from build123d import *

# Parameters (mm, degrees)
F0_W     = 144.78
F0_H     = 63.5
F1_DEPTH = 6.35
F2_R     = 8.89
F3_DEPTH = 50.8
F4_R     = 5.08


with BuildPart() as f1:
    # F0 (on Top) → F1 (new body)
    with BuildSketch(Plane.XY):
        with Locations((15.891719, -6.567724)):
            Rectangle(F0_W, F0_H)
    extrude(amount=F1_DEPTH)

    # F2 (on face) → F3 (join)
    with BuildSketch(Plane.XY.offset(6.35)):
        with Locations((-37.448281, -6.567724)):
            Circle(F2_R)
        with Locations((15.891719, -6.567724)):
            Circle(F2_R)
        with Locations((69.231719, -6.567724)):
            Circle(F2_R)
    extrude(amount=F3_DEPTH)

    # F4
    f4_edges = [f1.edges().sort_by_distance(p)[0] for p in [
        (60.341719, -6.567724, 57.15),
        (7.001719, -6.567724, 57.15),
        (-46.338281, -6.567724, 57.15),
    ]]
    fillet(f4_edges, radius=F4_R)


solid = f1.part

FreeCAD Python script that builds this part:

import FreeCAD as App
import Part
import Sketcher
Q = App.Units.Quantity


def edges_at(feature, points):
    """Names of the edges that pass closest to the given points."""
    edges = feature.Shape.Edges
    near = lambda p: min(range(len(edges)), key=lambda i: edges[i].distToShape(Part.Vertex(*p))[0])
    return sorted({f"Edge{near(p) + 1}" for p in points})

doc = App.newDocument("Part")
body = doc.addObject("PartDesign::Body", "Body")

# Sketch on XY plane
sketch1 = doc.addObject("Sketcher::SketchObject", "Sketch")
body.addObject(sketch1)
sketch1.AttachmentSupport = (doc.XY_Plane, [""])
sketch1.MapMode = "FlatFace"
sketch1.addGeometry([
    Part.LineSegment(App.Vector(-56, 25, 0), App.Vector(-56, -38, 0)),
    Part.LineSegment(App.Vector(-56, -38, 0), App.Vector(88, -38, 0)),
    Part.LineSegment(App.Vector(88, -38, 0), App.Vector(88, 25, 0)),
    Part.LineSegment(App.Vector(88, 25, 0), App.Vector(-56, 25, 0)),
], False)
sketch1.addConstraint([
    Sketcher.Constraint("Coincident", 0, 2, 1, 1),
    Sketcher.Constraint("Coincident", 1, 2, 2, 1),
    Sketcher.Constraint("Coincident", 2, 2, 3, 1),
    Sketcher.Constraint("Coincident", 3, 2, 0, 1),
    Sketcher.Constraint("Vertical", 0),
    Sketcher.Constraint("Horizontal", 1),
    Sketcher.Constraint("Vertical", 2),
    Sketcher.Constraint("Horizontal", 3),
    Sketcher.Constraint("DistanceX", 1, 1, 1, 2, Q("5.7 in")),
    Sketcher.Constraint("DistanceY", 0, 2, 0, 1, Q("2.5 in")),
    Sketcher.Constraint("DistanceX", 0, 2, -1, 1, 56.498281),
    Sketcher.Constraint("DistanceY", 0, 2, -1, 1, 38.317724),
])
pad1 = doc.addObject("PartDesign::Pad", "Pad")
body.addObject(pad1)
pad1.Profile = sketch1
pad1.Length = Q("0.25 in")

# Sketch on XY plane
sketch2 = doc.addObject("Sketcher::SketchObject", "Sketch001")
body.addObject(sketch2)
sketch2.AttachmentSupport = (doc.XY_Plane, [""])
sketch2.MapMode = "FlatFace"
sketch2.AttachmentOffset = App.Placement(App.Vector(0, 0, 0.25 * 25.4), App.Rotation())
sketch2.addGeometry([
    Part.Circle(App.Vector(-37, -7, 0), App.Vector(0, 0, 1), 9),
    Part.Circle(App.Vector(16, -7, 0), App.Vector(0, 0, 1), 9),
    Part.Circle(App.Vector(69, -7, 0), App.Vector(0, 0, 1), 9),
], False)
sketch2.addConstraint([
    Sketcher.Constraint("Equal", 0, 1),
    Sketcher.Constraint("Equal", 1, 2),
    Sketcher.Constraint("Horizontal", 0, 3, 1, 3),
    Sketcher.Constraint("Horizontal", 1, 3, 2, 3),
    Sketcher.Constraint("Diameter", 0, Q("0.7 in")),
    Sketcher.Constraint("DistanceX", 0, 3, 1, 3, Q("2.1 in")),
    Sketcher.Constraint("DistanceX", 1, 3, 2, 3, Q("2.1 in")),
    Sketcher.Constraint("DistanceX", 0, 3, -1, 1, 37.448281),
    Sketcher.Constraint("DistanceY", 0, 3, -1, 1, 6.567724),
])
pad2 = doc.addObject("PartDesign::Pad", "Pad001")
body.addObject(pad2)
pad2.Profile = sketch2
pad2.Length = Q("2 in")
doc.recompute()

fillet = doc.addObject("PartDesign::Fillet", "Fillet")
body.addObject(fillet)
fillet.Base = (pad2, edges_at(pad2, [(60.342, -6.568, 57.15), (7.002, -6.568, 57.15), (-46.338, -6.568, 57.15)]))
fillet.Radius = Q("0.2 in")

doc.recompute()
